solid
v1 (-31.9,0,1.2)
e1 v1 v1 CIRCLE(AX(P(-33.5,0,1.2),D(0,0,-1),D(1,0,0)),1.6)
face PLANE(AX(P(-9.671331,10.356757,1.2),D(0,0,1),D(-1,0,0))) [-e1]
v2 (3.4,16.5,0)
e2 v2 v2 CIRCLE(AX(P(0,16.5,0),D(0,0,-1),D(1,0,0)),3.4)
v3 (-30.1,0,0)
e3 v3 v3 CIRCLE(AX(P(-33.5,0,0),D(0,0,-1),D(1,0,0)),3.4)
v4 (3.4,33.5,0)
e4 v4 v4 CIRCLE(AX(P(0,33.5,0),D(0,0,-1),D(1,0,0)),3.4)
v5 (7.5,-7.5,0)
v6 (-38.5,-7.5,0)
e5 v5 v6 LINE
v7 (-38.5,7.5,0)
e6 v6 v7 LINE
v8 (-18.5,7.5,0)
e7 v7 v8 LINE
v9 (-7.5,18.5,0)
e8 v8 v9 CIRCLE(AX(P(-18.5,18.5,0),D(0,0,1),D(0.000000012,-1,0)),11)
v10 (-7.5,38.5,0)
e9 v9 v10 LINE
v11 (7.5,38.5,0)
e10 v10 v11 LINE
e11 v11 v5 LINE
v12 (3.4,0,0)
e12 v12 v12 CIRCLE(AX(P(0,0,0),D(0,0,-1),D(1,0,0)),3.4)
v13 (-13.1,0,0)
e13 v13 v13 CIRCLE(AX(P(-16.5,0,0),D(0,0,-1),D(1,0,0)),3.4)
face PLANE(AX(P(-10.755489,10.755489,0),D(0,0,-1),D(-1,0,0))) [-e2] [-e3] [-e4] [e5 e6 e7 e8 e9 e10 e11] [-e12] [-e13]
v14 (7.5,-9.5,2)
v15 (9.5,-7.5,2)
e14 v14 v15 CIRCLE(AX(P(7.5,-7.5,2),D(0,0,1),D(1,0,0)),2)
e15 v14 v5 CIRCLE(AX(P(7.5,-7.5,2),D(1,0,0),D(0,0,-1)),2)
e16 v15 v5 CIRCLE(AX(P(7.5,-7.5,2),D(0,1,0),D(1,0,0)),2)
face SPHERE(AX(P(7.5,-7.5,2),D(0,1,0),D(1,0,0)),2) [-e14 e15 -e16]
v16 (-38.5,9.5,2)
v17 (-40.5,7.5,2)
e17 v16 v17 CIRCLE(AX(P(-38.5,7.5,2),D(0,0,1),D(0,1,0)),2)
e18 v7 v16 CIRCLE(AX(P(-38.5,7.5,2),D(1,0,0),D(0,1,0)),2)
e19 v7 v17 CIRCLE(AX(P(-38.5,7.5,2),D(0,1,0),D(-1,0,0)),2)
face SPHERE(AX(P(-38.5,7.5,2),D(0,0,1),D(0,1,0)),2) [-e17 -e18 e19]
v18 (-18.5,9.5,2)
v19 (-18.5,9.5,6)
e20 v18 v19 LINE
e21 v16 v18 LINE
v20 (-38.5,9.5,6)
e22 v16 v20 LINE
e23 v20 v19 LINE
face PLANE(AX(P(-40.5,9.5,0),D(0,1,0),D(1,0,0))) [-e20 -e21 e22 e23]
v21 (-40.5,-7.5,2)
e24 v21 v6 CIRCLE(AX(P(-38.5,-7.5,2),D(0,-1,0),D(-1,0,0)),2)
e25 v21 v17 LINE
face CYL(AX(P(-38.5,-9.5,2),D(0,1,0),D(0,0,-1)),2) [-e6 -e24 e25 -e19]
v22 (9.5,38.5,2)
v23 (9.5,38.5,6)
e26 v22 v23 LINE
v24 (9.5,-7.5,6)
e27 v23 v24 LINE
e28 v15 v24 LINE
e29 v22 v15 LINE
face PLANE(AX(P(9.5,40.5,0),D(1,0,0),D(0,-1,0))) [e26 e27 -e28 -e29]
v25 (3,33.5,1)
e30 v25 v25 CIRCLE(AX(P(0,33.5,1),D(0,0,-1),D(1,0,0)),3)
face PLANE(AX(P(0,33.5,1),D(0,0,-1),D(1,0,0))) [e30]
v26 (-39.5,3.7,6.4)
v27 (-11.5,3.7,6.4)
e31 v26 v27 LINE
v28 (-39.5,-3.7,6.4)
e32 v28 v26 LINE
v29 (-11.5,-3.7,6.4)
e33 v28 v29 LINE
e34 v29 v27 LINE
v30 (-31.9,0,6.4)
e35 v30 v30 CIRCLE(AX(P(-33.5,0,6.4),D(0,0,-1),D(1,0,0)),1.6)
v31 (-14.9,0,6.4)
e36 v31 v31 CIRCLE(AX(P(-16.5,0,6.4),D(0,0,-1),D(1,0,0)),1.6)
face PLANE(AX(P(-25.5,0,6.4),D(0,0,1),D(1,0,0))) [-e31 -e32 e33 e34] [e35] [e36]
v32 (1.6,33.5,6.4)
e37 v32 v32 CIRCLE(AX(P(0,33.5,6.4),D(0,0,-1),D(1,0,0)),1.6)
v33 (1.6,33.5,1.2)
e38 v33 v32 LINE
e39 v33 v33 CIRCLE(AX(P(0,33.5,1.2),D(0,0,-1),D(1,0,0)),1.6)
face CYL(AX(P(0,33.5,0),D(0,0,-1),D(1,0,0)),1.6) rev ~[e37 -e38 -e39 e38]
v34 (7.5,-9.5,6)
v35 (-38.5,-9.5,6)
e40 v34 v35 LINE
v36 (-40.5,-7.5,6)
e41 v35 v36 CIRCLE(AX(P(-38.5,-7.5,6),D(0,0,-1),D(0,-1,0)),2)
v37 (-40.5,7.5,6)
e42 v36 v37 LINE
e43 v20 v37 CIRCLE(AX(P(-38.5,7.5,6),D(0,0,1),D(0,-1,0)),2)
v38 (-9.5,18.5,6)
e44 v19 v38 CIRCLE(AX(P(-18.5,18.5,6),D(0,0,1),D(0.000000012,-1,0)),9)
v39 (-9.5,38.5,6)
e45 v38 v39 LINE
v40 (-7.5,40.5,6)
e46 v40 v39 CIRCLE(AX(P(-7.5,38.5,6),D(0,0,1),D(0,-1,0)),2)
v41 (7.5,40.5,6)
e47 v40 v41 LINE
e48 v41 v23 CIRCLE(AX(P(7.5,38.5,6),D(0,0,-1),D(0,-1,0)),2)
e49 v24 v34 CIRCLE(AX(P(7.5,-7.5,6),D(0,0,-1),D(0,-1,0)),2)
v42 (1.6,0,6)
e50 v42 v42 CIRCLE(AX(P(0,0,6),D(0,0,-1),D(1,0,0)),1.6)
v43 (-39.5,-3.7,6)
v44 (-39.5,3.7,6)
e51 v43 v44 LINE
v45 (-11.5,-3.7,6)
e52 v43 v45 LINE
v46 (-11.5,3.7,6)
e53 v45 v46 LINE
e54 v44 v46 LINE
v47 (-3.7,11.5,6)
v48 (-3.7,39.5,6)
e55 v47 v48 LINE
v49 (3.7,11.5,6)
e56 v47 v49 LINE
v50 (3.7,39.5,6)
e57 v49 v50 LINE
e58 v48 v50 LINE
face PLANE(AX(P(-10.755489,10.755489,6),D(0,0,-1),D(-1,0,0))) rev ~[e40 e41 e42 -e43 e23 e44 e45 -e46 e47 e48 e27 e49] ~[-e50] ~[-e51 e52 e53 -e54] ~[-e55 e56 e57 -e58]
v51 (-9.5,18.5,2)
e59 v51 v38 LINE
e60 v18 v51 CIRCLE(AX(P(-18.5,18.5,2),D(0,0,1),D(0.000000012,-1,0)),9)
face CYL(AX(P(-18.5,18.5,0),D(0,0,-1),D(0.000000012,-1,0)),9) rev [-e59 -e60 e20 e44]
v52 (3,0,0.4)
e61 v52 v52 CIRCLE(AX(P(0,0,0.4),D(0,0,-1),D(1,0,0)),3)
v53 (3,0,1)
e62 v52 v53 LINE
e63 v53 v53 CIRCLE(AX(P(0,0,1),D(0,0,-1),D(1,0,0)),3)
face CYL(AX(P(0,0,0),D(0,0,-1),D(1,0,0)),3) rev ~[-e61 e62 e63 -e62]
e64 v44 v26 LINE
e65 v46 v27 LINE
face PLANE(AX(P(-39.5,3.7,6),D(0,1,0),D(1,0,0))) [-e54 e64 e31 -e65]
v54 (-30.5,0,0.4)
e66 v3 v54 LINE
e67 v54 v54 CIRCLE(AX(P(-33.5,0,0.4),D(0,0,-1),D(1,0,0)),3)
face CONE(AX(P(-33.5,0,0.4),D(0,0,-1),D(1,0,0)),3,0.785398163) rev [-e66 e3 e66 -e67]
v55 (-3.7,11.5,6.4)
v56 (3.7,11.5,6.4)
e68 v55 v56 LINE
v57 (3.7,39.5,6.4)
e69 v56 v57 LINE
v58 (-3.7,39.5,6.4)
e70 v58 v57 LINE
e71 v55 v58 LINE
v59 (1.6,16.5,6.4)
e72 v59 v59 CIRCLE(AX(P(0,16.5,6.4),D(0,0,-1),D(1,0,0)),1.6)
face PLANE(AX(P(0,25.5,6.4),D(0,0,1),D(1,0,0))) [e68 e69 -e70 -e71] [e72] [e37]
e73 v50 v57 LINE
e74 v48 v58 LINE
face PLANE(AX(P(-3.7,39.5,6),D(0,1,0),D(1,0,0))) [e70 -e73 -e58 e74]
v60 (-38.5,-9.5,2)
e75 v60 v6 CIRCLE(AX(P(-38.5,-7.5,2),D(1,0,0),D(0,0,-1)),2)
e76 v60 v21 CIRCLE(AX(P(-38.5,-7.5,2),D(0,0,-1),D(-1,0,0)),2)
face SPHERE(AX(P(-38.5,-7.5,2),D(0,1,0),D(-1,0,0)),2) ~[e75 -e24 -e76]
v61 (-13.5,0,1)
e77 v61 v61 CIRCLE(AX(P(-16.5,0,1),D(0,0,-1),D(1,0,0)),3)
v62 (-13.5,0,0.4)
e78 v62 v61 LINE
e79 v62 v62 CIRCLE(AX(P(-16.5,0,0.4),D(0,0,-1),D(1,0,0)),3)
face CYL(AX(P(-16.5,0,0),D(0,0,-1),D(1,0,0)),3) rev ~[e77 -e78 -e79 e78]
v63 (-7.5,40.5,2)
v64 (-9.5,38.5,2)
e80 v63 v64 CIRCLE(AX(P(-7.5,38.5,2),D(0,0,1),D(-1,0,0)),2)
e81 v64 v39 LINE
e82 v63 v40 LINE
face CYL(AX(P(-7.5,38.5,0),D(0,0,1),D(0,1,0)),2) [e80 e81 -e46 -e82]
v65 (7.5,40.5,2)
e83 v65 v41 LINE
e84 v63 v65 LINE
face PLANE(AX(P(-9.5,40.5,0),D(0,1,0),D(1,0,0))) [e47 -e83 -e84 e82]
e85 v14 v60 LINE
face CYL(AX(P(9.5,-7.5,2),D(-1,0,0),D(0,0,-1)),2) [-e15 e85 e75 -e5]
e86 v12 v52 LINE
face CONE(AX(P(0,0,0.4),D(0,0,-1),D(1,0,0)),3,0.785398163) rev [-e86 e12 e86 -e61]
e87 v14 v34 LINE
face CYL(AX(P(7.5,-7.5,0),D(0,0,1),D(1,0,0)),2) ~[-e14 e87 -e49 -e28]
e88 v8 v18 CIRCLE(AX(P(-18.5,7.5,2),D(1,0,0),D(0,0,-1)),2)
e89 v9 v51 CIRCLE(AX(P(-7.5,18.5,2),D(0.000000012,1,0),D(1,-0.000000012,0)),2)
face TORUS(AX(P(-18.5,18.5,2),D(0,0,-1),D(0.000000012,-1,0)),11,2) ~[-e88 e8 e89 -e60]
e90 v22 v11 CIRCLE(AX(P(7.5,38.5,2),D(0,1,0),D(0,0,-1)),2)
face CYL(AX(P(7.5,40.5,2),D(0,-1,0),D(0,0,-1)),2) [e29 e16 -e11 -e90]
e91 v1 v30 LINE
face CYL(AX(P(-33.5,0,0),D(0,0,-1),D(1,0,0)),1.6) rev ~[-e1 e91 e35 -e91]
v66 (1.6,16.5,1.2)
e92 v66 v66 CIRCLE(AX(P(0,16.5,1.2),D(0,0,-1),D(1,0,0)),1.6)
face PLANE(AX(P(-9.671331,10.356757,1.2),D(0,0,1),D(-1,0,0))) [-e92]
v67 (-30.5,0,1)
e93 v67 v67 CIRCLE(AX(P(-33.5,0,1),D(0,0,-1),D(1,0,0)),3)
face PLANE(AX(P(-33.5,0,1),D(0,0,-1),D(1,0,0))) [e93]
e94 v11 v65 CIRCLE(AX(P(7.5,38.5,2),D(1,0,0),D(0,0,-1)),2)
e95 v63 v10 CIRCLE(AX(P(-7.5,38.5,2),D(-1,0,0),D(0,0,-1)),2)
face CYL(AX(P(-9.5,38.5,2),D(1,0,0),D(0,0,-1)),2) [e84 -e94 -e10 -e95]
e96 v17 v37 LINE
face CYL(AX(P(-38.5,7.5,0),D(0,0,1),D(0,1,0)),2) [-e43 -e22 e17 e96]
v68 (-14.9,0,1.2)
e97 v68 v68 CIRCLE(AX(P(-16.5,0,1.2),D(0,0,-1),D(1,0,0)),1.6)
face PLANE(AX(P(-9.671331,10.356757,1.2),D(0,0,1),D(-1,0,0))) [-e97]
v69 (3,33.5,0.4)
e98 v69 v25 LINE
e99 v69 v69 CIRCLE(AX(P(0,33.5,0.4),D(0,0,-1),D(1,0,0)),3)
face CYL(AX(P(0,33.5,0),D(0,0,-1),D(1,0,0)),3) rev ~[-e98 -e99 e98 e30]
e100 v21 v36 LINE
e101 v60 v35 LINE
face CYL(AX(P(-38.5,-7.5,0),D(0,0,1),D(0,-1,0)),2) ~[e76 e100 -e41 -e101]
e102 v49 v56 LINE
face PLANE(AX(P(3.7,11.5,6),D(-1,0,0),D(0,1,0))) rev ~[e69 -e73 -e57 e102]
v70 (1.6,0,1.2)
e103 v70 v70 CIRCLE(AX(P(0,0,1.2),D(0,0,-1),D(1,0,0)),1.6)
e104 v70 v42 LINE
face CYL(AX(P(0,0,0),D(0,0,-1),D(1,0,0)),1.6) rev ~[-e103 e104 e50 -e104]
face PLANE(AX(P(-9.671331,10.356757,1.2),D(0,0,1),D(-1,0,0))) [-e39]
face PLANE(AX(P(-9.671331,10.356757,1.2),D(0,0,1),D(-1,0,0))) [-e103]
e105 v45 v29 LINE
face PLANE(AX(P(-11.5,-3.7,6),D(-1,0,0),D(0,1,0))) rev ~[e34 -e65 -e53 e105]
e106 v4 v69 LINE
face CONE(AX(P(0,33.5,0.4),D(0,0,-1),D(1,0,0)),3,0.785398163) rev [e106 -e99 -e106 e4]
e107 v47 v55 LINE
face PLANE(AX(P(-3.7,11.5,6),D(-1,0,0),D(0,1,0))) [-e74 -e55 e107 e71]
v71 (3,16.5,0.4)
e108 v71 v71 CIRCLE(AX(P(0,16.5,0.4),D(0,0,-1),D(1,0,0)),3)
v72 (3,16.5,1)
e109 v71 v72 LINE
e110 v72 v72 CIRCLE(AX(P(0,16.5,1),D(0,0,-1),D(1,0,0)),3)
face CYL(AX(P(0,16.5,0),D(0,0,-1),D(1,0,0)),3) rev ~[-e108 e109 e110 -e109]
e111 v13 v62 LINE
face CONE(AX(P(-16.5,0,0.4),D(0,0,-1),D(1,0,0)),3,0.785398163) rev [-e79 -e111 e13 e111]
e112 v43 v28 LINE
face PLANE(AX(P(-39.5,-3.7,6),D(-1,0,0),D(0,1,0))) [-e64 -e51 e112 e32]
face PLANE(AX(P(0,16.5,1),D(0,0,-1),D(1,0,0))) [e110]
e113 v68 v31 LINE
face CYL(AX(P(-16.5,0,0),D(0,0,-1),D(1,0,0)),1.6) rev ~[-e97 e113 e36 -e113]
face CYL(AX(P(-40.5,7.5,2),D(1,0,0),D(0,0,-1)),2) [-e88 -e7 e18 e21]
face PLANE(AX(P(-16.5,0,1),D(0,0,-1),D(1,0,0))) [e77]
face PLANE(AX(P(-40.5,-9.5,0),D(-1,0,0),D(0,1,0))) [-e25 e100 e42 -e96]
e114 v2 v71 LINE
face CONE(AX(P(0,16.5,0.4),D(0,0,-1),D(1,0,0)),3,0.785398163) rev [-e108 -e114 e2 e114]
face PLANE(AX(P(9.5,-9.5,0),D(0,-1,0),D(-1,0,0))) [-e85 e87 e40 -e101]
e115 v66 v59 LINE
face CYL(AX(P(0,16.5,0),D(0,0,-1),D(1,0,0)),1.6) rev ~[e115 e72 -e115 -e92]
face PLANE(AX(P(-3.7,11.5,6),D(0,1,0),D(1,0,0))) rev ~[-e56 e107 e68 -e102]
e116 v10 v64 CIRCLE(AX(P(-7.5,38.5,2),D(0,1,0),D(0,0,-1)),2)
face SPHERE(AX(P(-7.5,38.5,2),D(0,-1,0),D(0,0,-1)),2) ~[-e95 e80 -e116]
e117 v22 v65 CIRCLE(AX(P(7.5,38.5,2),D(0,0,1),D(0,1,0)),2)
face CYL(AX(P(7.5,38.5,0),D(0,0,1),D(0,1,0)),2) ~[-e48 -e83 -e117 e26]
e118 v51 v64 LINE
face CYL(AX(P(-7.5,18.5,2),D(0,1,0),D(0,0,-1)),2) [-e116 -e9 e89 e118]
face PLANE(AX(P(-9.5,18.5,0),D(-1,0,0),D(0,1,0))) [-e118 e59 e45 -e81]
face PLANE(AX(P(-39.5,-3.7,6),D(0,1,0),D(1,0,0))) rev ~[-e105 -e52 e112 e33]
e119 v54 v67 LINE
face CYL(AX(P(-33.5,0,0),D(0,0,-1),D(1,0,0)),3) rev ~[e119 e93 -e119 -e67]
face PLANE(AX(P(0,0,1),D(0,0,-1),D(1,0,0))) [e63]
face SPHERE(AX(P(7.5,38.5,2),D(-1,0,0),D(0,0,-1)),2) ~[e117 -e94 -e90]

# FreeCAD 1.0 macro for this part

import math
import FreeCAD as App
import Part
import Sketcher

V = App.Vector
Q = App.Units.Quantity


def edges_at(feature, points):
    """Names of the edges that pass closest to the given points."""
    edges = feature.Shape.Edges
    near = lambda p: min(range(len(edges)), key=lambda i: edges[i].distToShape(Part.Vertex(*p))[0])
    return sorted({f"Edge{near(p) + 1}" for p in points})

doc = App.newDocument("Part")
body = doc.addObject("PartDesign::Body", "Body")

sketch1 = doc.addObject("Sketcher::SketchObject", "Sketch")
body.addObject(sketch1)
sketch1.AttachmentSupport = (doc.XY_Plane, [""])
sketch1.MapMode = "FlatFace"
sketch1.addGeometry(Part.LineSegment(V(10, 40, 0), V(-10, 40, 0)), False)
sketch1.addGeometry(Part.LineSegment(V(-10, 40, 0), V(-10, 18, 0)), False)
sketch1.addGeometry(Part.ArcOfCircle(Part.Circle(V(-19, 19, 0), V(0, 0, 1), 9), math.radians(-90), math.radians(0)), False)
sketch1.addGeometry(Part.LineSegment(V(-18, 10, 0), V(-40, 10, 0)), False)
sketch1.addGeometry(Part.LineSegment(V(-40, 10, 0), V(-40, -10, 0)), False)
sketch1.addGeometry(Part.LineSegment(V(-40, -10, 0), V(10, -10, 0)), False)
sketch1.addGeometry(Part.LineSegment(V(10, -10, 0), V(10, 40, 0)), False)
sketch1.addConstraint(Sketcher.Constraint("Coincident", 0, 2, 1, 1))
sketch1.addConstraint(Sketcher.Constraint("Tangent", 1, 2, 2, 2))
sketch1.addConstraint(Sketcher.Constraint("Tangent", 2, 1, 3, 1))
sketch1.addConstraint(Sketcher.Constraint("Coincident", 3, 2, 4, 1))
sketch1.addConstraint(Sketcher.Constraint("Coincident", 4, 2, 5, 1))
sketch1.addConstraint(Sketcher.Constraint("Coincident", 5, 2, 6, 1))
sketch1.addConstraint(Sketcher.Constraint("Coincident", 6, 2, 0, 1))
sketch1.addConstraint(Sketcher.Constraint("Horizontal", 0))
sketch1.addConstraint(Sketcher.Constraint("Vertical", 1))
sketch1.addConstraint(Sketcher.Constraint("Horizontal", 3))
sketch1.addConstraint(Sketcher.Constraint("Vertical", 4))
sketch1.addConstraint(Sketcher.Constraint("Horizontal", 5))
sketch1.addConstraint(Sketcher.Constraint("Vertical", 6))
sketch1.addConstraint(Sketcher.Constraint("Equal", 3, 1))
sketch1.addConstraint(Sketcher.Constraint("Equal", 0, 4))
sketch1.addConstraint(Sketcher.Constraint("Radius", 2, Q("9 mm")))
sketch1.addConstraint(Sketcher.Constraint("DistanceX", 0, 2, 0, 1, Q("19 mm")))
sketch1.addConstraint(Sketcher.Constraint("DistanceX", 3, 2, 3, 1, Q("22 mm")))
sketch1.addConstraint(Sketcher.Constraint("DistanceX", 2, 3, -1, 1, Q("18.5 mm")))
sketch1.addConstraint(Sketcher.Constraint("DistanceY", -1, 1, 2, 3, Q("18.5 mm")))
pad1 = doc.addObject("PartDesign::Pad", "Pad")
body.addObject(pad1)
pad1.Profile = sketch1
pad1.Length = 6

sketch2 = doc.addObject("Sketcher::SketchObject", "Sketch001")
body.addObject(sketch2)
sketch2.AttachmentSupport = (doc.XY_Plane, [""])
sketch2.MapMode = "FlatFace"
sketch2.AttachmentOffset = App.Placement(V(0, 0, 6), App.Rotation())
sketch2.addGeometry(Part.LineSegment(V(-40, 4, 0), V(-40, -4, 0)), False)
sketch2.addGeometry(Part.LineSegment(V(-40, -4, 0), V(-12, -4, 0)), False)
sketch2.addGeometry(Part.LineSegment(V(-12, -4, 0), V(-12, 4, 0)), False)
sketch2.addGeometry(Part.LineSegment(V(-12, 4, 0), V(-40, 4, 0)), False)
sketch2.addGeometry(Part.LineSegment(V(-4, 40, 0), V(-4, 12, 0)), False)
sketch2.addGeometry(Part.LineSegment(V(-4, 12, 0), V(4, 12, 0)), False)
sketch2.addGeometry(Part.LineSegment(V(4, 12, 0), V(4, 40, 0)), False)
sketch2.addGeometry(Part.LineSegment(V(4, 40, 0), V(-4, 40, 0)), False)
sketch2.addConstraint(Sketcher.Constraint("Coincident", 0, 2, 1, 1))
sketch2.addConstraint(Sketcher.Constraint("Coincident", 1, 2, 2, 1))
sketch2.addConstraint(Sketcher.Constraint("Coincident", 2, 2, 3, 1))
sketch2.addConstraint(Sketcher.Constraint("Coincident", 3, 2, 0, 1))
sketch2.addConstraint(Sketcher.Constraint("Coincident", 4, 2, 5, 1))
sketch2.addConstraint(Sketcher.Constraint("Coincident", 5, 2, 6, 1))
sketch2.addConstraint(Sketcher.Constraint("Coincident", 6, 2, 7, 1))
sketch2.addConstraint(Sketcher.Constraint("Coincident", 7, 2, 4, 1))
sketch2.addConstraint(Sketcher.Constraint("Vertical", 0))
sketch2.addConstraint(Sketcher.Constraint("Horizontal", 1))
sketch2.addConstraint(Sketcher.Constraint("Vertical", 2))
sketch2.addConstraint(Sketcher.Constraint("Horizontal", 3))
sketch2.addConstraint(Sketcher.Constraint("Vertical", 4))
sketch2.addConstraint(Sketcher.Constraint("Horizontal", 5))
sketch2.addConstraint(Sketcher.Constraint("Vertical", 6))
sketch2.addConstraint(Sketcher.Constraint("Horizontal", 7))
sketch2.addConstraint(Sketcher.Constraint("Equal", 7, 0))
sketch2.addConstraint(Sketcher.Constraint("Equal", 3, 4))
sketch2.addConstraint(Sketcher.Constraint("DistanceX", 1, 1, 1, 2, Q("28 mm")))
sketch2.addConstraint(Sketcher.Constraint("DistanceX", 5, 1, 5, 2, Q("7.4 mm")))
sketch2.addConstraint(Sketcher.Constraint("DistanceX", 0, 2, -1, 1, Q("39.5 mm")))
sketch2.addConstraint(Sketcher.Constraint("DistanceY", 0, 2, -1, 1, Q("3.7 mm")))
sketch2.addConstraint(Sketcher.Constraint("DistanceX", 4, 2, -1, 1, Q("3.7 mm")))
sketch2.addConstraint(Sketcher.Constraint("DistanceY", -1, 1, 4, 2, Q("11.5 mm")))
pad2 = doc.addObject("PartDesign::Pad", "Pad001")
body.addObject(pad2)
pad2.Profile = sketch2
pad2.Length = 0.4

sketch3 = doc.addObject("Sketcher::SketchObject", "Sketch002")
body.addObject(sketch3)
sketch3.AttachmentSupport = (doc.XY_Plane, [""])
sketch3.MapMode = "FlatFace"
sketch3.addGeometry(Part.Circle(V(-33.5, 0, 0), V(0, 0, 1), 1.6), False)
sketch3.addGeometry(Part.Circle(V(-16.5, 0, 0), V(0, 0, 1), 1.6), False)
sketch3.addGeometry(Part.Circle(V(0, 16.5, 0), V(0, 0, 1), 1.6), False)
sketch3.addGeometry(Part.Circle(V(0, 33.5, 0), V(0, 0, 1), 1.6), False)
sketch3.addGeometry(Part.Circle(V(0, 0, 0), V(0, 0, 1), 1.6), False)
sketch3.addConstraint(Sketcher.Constraint("Coincident", 4, 3, -1, 1))
sketch3.addConstraint(Sketcher.Constraint("Equal", 0, 1))
sketch3.addConstraint(Sketcher.Constraint("Equal", 1, 2))
sketch3.addConstraint(Sketcher.Constraint("Equal", 2, 3))
sketch3.addConstraint(Sketcher.Constraint("Equal", 3, 4))
sketch3.addConstraint(Sketcher.Constraint("PointOnObject", 0, 3, -1))
sketch3.addConstraint(Sketcher.Constraint("PointOnObject", 1, 3, -1))
sketch3.addConstraint(Sketcher.Constraint("PointOnObject", 2, 3, -2))
sketch3.addConstraint(Sketcher.Constraint("PointOnObject", 3, 3, -2))
sketch3.addConstraint(Sketcher.Constraint("Diameter", 0, Q("3.2 mm")))
sketch3.addConstraint(Sketcher.Constraint("DistanceX", 0, 3, 1, 3, Q("17 mm")))
sketch3.addConstraint(Sketcher.Constraint("DistanceY", 2, 3, 3, 3, Q("17 mm")))
sketch3.addConstraint(Sketcher.Constraint("DistanceX", 0, 3, -1, 1, Q("33.5 mm")))
sketch3.addConstraint(Sketcher.Constraint("DistanceY", -1, 1, 2, 3, Q("16.5 mm")))
pocket1 = doc.addObject("PartDesign::Pocket", "Pocket")
body.addObject(pocket1)
pocket1.Profile = sketch3
pocket1.Type = "ThroughAll"
pocket1.Reversed = True

sketch4 = doc.addObject("Sketcher::SketchObject", "Sketch003")
body.addObject(sketch4)
sketch4.AttachmentSupport = (doc.XY_Plane, [""])
sketch4.MapMode = "FlatFace"
sketch4.addGeometry(Part.Circle(V(-33.5, 0, 0), V(0, 0, 1), 3), False)
sketch4.addGeometry(Part.Circle(V(-16.5, 0, 0), V(0, 0, 1), 3), False)
sketch4.addGeometry(Part.Circle(V(0, 16.5, 0), V(0, 0, 1), 3), False)
sketch4.addGeometry(Part.Circle(V(0, 33.5, 0), V(0, 0, 1), 3), False)
sketch4.addGeometry(Part.Circle(V(0, 0, 0), V(0, 0, 1), 3), False)
sketch4.addConstraint(Sketcher.Constraint("Coincident", 4, 3, -1, 1))
sketch4.addConstraint(Sketcher.Constraint("Equal", 0, 1))
sketch4.addConstraint(Sketcher.Constraint("Equal", 1, 2))
sketch4.addConstraint(Sketcher.Constraint("Equal", 2, 3))
sketch4.addConstraint(Sketcher.Constraint("Equal", 3, 4))
sketch4.addConstraint(Sketcher.Constraint("PointOnObject", 0, 3, -1))
sketch4.addConstraint(Sketcher.Constraint("PointOnObject", 1, 3, -1))
sketch4.addConstraint(Sketcher.Constraint("PointOnObject", 2, 3, -2))
sketch4.addConstraint(Sketcher.Constraint("PointOnObject", 3, 3, -2))
sketch4.addConstraint(Sketcher.Constraint("Diameter", 0, Q("6 mm")))
sketch4.addConstraint(Sketcher.Constraint("DistanceX", 0, 3, 1, 3, Q("17 mm")))
sketch4.addConstraint(Sketcher.Constraint("DistanceY", 2, 3, 3, 3, Q("17 mm")))
sketch4.addConstraint(Sketcher.Constraint("DistanceX", 0, 3, -1, 1, Q("33.5 mm")))
sketch4.addConstraint(Sketcher.Constraint("DistanceY", -1, 1, 2, 3, Q("16.5 mm")))
pocket2 = doc.addObject("PartDesign::Pocket", "Pocket001")
body.addObject(pocket2)
pocket2.Profile = sketch4
pocket2.Length = 1
pocket2.Reversed = True

sketch5 = doc.addObject("Sketcher::SketchObject", "Sketch004")
body.addObject(sketch5)
sketch5.AttachmentSupport = (doc.XY_Plane, [""])
sketch5.MapMode = "FlatFace"
sketch5.AttachmentOffset = App.Placement(V(0, 0, 1), App.Rotation())
sketch5.addGeometry(Part.LineSegment(V(6, -5, 0), V(-37, -5, 0)), False)
sketch5.addGeometry(Part.LineSegment(V(-37, -5, 0), V(-37, 6, 0)), False)
sketch5.addGeometry(Part.LineSegment(V(-37, 6, 0), V(-6, 6, 0)), False)
sketch5.addGeometry(Part.LineSegment(V(-6, 6, 0), V(-6, 37, 0)), False)
sketch5.addGeometry(Part.LineSegment(V(-6, 37, 0), V(6, 37, 0)), False)
sketch5.addGeometry(Part.LineSegment(V(6, 37, 0), V(6, -5, 0)), False)
sketch5.addConstraint(Sketcher.Constraint("Coincident", 0, 2, 1, 1))
sketch5.addConstraint(Sketcher.Constraint("Coincident", 1, 2, 2, 1))
sketch5.addConstraint(Sketcher.Constraint("Coincident", 2, 2, 3, 1))
sketch5.addConstraint(Sketcher.Constraint("Coincident", 3, 2, 4, 1))
sketch5.addConstraint(Sketcher.Constraint("Coincident", 4, 2, 5, 1))
sketch5.addConstraint(Sketcher.Constraint("Coincident", 5, 2, 0, 1))
sketch5.addConstraint(Sketcher.Constraint("Horizontal", 0))
sketch5.addConstraint(Sketcher.Constraint("Vertical", 1))
sketch5.addConstraint(Sketcher.Constraint("Horizontal", 2))
sketch5.addConstraint(Sketcher.Constraint("Vertical", 3))
sketch5.addConstraint(Sketcher.Constraint("Horizontal", 4))
sketch5.addConstraint(Sketcher.Constraint("Vertical", 5))
sketch5.addConstraint(Sketcher.Constraint("Equal", 4, 1))
sketch5.addConstraint(Sketcher.Constraint("Equal", 2, 3))
sketch5.addConstraint(Sketcher.Constraint("DistanceX", 2, 1, 2, 2, Q("30.97869 mm")))
sketch5.addConstraint(Sketcher.Constraint("DistanceX", 0, 2, 0, 1, Q("42.568818 mm")))
sketch5.addConstraint(Sketcher.Constraint("DistanceX", 0, 2, -1, 1, Q("36.591786 mm")))
sketch5.addConstraint(Sketcher.Constraint("DistanceY", 0, 2, -1, 1, Q("5.291606 mm")))
pad3 = doc.addObject("PartDesign::Pad", "Pad002")
body.addObject(pad3)
pad3.Profile = sketch5
pad3.Length = 0.2

sketch6 = doc.addObject("Sketcher::SketchObject", "Sketch005")
body.addObject(sketch6)
sketch6.AttachmentSupport = (doc.XY_Plane, [""])
sketch6.MapMode = "FlatFace"
sketch6.AttachmentOffset = App.Placement(V(0, 0, 6), App.Rotation())
sketch6.addGeometry(Part.Circle(V(0, 0, 0), V(0, 0, 1), 1), False)
sketch6.addConstraint(Sketcher.Constraint("Coincident", 0, 3, -1, 1))
sketch6.addConstraint(Sketcher.Constraint("Diameter", 0, Q("2 mm")))
pocket3 = doc.addObject("PartDesign::Pocket", "Pocket002")
body.addObject(pocket3)
pocket3.Profile = sketch6
pocket3.Length = 0.01
pocket3.Reversed = True
doc.recompute()

fillet = doc.addObject("PartDesign::Fillet", "Fillet")
body.addObject(fillet)
fillet.Base = (pocket3, edges_at(pocket3, [
    (-40.5, 9.5, 3),
    (-29.5, 9.5, 0),
    (-12.136, 12.136, 0),
    (-9.5, 29.5, 0),
    (0, 40.5, 0),
    (9.5, 15.5, 0),
    (9.5, -9.5, 3),
    (9.5, 40.5, 3),
    (-9.5, 40.5, 3),
    (-40.5, 0, 0),
    (-40.5, -9.5, 3),
    (-15.5, -9.5, 0),
]))
fillet.Radius = 2
doc.recompute()

chamfer = doc.addObject("PartDesign::Chamfer", "Chamfer")
body.addObject(chamfer)
chamfer.Base = (fillet, edges_at(fillet, [
    (-19.5, 0, 0),
    (-36.5, 0, 0),
    (-3, 0, 0),
    (-3, 16.5, 0),
    (-3, 33.5, 0),
]))
chamfer.Size = 0.4

doc.recompute()
